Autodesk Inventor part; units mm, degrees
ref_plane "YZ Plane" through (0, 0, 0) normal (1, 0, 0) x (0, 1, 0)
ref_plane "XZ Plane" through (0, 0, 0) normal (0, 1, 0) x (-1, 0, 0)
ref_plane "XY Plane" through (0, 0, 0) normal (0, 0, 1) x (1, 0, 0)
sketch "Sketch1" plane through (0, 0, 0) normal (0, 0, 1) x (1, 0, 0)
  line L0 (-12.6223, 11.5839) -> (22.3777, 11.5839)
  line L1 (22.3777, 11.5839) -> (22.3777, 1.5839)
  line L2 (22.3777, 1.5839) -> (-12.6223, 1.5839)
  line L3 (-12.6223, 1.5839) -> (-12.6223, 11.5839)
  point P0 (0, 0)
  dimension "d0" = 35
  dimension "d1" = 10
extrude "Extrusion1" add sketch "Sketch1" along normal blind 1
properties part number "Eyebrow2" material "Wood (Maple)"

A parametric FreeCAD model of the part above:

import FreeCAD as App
import Part
import Sketcher

V = App.Vector
Q = App.Units.Quantity


def add_polygon(sketch, points):
    """Adds a closed chain of lines whose ends are joined by coincident constraints."""
    first, n = sketch.GeometryCount, len(points)
    for a, b in zip(points, points[1:] + points[:1]):
        sketch.addGeometry(Part.LineSegment(App.Vector(*a, 0), App.Vector(*b, 0)), False)
    for i in range(n):
        sketch.addConstraint(Sketcher.Constraint("Coincident", first + i, 2, first + (i + 1) % n, 1))

doc = App.newDocument("Part")
body = doc.addObject("PartDesign::Body", "Body")

# Sketch on XY plane
sketch1 = body.newObject("Sketcher::SketchObject", "Sketch")
sketch1.AttachmentSupport = (doc.getObject("XY_Plane"), [""])
sketch1.MapMode = "FlatFace"
add_polygon(sketch1, [(22, 12), (-13, 12), (-13, 2), (22, 2)])  # lines 0-3
sketch1.addConstraint([
    Sketcher.Constraint("Horizontal", 0),
    Sketcher.Constraint("Vertical", 1),
    Sketcher.Constraint("Horizontal", 2),
    Sketcher.Constraint("Vertical", 3),
    Sketcher.Constraint("DistanceX", 0, 2, 0, 1, Q("35 mm")),
    Sketcher.Constraint("DistanceY", 1, 2, 1, 1, Q("10 mm")),
    Sketcher.Constraint("DistanceY", -1, 1, 0, 2, Q("11.584 mm")),
    Sketcher.Constraint("DistanceX", 0, 2, -1, 1, Q("12.6223 mm")),
])
pad1 = body.newObject("PartDesign::Pad", "Pad")
pad1.Profile = sketch1
pad1.Length = 1

doc.recompute()
